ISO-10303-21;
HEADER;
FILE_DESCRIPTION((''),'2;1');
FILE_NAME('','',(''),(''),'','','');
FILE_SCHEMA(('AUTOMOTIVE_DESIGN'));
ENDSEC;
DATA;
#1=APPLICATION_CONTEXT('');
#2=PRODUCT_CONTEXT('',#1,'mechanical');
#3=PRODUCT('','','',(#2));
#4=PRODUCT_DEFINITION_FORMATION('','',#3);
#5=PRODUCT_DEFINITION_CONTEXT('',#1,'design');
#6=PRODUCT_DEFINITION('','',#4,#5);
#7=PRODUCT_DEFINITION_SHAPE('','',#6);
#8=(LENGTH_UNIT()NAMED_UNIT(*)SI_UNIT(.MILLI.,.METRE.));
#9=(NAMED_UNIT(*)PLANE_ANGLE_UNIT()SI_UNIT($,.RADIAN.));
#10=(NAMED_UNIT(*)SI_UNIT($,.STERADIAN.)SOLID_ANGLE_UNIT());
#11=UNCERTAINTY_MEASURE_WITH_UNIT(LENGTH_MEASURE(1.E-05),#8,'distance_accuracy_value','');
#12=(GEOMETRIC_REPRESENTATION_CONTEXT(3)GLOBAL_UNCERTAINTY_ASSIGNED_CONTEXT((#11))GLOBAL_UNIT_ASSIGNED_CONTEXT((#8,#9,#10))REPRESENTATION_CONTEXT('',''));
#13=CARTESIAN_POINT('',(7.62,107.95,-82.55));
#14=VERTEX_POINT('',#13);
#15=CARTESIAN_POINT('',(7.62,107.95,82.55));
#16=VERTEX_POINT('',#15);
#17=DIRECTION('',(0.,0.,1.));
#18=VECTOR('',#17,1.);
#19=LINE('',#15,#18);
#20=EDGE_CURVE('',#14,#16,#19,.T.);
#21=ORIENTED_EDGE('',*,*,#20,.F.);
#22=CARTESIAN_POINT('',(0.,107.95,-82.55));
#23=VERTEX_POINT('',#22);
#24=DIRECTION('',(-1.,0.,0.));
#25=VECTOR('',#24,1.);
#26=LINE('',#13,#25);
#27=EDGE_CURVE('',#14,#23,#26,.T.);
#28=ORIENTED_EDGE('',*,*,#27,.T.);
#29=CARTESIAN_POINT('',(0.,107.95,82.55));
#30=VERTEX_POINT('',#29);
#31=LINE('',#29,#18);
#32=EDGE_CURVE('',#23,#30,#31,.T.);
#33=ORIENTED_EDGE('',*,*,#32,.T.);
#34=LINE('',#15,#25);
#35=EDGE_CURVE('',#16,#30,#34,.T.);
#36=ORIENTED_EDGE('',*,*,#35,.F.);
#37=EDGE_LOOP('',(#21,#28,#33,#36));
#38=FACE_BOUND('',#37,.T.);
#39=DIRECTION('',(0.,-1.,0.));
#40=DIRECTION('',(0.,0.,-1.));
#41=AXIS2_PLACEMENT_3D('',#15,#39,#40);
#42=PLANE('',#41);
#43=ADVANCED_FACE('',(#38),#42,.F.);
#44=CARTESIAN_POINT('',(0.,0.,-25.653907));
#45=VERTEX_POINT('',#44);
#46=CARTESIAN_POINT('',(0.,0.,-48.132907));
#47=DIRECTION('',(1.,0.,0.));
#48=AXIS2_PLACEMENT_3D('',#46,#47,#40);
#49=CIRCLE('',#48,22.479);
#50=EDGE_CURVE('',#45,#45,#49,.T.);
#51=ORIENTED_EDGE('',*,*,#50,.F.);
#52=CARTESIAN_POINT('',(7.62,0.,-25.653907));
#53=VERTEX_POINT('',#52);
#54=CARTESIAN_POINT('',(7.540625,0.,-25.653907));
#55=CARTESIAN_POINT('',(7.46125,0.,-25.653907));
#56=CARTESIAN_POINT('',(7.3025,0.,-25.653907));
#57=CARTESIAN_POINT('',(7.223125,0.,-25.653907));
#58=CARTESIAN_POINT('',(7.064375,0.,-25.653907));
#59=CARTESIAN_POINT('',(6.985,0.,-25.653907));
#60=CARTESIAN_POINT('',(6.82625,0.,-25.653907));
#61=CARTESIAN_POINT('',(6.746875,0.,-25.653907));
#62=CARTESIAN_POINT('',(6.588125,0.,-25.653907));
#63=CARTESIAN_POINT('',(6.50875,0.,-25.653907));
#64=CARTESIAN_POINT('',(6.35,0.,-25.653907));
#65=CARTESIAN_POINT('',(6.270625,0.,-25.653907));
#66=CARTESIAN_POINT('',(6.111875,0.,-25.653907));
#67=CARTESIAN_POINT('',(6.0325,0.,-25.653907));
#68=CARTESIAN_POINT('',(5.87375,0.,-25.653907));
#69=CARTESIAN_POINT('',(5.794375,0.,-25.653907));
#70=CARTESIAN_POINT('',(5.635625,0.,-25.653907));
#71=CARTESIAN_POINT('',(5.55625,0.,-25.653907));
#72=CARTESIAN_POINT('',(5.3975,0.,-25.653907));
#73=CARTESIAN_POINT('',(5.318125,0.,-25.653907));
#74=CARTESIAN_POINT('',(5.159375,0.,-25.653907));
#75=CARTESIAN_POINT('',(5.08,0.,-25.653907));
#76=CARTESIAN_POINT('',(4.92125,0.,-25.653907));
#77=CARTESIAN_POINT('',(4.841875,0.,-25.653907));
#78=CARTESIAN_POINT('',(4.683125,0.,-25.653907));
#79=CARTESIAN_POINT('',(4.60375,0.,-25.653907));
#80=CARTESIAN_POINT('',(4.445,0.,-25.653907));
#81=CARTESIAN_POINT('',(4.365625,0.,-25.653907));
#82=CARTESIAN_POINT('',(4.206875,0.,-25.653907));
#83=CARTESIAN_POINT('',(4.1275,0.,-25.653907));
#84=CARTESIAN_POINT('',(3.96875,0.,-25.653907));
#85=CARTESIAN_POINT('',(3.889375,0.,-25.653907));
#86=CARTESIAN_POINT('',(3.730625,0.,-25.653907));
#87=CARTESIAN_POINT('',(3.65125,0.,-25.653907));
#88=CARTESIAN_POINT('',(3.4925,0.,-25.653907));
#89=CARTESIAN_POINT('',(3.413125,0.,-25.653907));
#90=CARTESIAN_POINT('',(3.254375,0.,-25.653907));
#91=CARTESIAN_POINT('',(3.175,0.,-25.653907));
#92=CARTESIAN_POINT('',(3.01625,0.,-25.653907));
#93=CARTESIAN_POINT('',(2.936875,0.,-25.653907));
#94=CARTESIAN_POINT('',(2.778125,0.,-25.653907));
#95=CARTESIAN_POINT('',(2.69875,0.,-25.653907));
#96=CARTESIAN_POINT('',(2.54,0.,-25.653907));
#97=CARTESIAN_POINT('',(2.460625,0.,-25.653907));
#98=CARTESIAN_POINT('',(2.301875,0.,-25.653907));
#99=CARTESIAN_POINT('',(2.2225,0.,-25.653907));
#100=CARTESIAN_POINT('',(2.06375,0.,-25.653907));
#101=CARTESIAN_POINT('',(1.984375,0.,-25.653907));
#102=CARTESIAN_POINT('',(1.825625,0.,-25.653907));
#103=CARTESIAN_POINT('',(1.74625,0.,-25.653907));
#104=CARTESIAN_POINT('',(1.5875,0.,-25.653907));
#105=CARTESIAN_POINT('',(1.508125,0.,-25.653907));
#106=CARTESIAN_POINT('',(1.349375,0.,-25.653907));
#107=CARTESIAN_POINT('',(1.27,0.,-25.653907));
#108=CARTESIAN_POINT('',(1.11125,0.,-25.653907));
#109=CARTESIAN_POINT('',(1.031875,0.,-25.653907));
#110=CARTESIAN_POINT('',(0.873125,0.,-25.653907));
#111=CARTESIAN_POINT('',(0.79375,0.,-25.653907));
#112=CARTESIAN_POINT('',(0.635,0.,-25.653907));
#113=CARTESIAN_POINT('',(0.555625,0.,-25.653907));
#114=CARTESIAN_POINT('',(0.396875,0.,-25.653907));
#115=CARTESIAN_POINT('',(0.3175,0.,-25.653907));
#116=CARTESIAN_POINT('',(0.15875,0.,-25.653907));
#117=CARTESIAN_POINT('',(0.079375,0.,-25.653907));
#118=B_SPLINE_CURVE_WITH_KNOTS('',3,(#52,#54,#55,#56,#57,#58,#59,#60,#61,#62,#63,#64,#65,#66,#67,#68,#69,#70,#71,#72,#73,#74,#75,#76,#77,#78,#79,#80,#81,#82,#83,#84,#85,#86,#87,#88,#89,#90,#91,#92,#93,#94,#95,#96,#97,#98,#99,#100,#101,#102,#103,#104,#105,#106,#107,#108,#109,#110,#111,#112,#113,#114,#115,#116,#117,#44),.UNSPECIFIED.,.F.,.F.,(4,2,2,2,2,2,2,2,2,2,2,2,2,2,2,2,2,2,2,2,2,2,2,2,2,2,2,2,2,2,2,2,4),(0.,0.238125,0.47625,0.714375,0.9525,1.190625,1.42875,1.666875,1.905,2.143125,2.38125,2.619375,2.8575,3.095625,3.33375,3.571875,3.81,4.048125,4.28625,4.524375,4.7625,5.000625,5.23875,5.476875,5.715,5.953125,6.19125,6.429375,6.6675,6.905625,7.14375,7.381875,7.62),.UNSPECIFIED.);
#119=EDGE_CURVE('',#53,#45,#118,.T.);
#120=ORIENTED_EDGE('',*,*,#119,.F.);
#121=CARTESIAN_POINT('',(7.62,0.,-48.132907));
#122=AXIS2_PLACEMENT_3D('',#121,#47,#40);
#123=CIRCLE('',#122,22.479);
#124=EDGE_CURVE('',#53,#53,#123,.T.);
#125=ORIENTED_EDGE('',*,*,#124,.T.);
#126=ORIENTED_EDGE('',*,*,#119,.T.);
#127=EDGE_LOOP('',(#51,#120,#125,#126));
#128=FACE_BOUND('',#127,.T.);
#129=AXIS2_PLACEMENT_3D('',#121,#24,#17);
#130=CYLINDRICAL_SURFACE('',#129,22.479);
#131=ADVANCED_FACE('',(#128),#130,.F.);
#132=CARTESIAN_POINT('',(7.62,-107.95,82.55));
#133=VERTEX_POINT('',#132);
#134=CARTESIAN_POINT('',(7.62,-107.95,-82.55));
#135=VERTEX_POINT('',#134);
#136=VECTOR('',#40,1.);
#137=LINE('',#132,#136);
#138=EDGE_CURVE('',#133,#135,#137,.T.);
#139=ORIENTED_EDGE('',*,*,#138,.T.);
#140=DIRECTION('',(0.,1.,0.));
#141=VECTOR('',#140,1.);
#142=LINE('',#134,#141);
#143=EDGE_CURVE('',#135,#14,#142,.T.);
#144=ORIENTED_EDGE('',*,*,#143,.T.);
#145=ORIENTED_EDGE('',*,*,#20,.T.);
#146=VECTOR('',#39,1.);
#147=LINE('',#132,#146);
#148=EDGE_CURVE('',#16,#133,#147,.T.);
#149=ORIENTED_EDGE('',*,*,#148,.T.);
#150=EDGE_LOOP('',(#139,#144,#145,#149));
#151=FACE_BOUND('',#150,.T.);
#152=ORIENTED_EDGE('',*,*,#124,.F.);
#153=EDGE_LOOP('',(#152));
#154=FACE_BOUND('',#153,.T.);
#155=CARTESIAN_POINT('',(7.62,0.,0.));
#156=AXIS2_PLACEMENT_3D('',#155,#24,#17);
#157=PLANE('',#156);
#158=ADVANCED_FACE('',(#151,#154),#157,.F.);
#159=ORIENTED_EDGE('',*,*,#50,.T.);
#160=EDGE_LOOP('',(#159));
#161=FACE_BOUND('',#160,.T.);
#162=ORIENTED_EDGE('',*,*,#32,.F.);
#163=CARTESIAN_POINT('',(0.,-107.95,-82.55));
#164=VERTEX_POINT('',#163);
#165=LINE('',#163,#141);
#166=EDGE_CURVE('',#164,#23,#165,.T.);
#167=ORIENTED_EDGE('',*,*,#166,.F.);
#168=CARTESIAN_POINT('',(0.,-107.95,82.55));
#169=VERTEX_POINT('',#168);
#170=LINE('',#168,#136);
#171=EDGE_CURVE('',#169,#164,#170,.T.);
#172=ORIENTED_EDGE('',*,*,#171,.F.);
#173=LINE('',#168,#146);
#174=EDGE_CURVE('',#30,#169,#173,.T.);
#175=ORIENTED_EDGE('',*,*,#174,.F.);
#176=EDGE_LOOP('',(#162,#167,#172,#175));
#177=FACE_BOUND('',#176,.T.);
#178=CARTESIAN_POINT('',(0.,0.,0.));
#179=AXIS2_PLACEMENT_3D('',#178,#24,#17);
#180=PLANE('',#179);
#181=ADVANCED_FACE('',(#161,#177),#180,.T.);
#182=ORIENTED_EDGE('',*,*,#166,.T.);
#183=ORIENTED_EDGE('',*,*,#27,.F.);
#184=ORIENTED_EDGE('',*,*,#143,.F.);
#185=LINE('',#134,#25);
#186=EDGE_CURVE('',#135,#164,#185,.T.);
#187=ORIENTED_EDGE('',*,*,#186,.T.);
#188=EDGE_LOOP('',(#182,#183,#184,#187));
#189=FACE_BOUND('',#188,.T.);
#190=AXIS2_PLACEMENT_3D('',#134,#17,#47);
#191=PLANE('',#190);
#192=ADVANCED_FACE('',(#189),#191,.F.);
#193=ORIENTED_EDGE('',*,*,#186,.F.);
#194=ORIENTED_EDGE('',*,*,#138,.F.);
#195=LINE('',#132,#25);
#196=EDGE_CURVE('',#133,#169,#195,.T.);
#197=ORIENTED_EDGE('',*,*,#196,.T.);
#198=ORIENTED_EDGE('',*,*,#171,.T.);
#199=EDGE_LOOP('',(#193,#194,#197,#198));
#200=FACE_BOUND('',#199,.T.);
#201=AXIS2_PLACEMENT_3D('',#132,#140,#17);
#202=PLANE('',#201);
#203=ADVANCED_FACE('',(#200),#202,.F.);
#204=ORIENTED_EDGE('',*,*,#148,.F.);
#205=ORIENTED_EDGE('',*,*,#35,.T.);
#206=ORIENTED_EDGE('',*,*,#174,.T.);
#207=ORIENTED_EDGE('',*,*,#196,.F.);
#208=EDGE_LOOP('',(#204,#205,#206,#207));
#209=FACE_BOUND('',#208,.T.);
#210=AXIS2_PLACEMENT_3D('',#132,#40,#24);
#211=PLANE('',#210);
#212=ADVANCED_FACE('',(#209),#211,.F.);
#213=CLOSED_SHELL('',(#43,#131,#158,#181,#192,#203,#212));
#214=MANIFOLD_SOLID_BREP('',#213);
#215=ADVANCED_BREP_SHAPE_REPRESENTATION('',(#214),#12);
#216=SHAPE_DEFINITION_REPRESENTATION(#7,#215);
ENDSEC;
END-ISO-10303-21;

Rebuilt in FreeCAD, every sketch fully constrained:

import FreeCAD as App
import Part
import Sketcher

V = App.Vector
Q = App.Units.Quantity


def add_polygon(sketch, points):
    """Adds a closed chain of lines whose ends are joined by coincident constraints."""
    first, n = sketch.GeometryCount, len(points)
    for a, b in zip(points, points[1:] + points[:1]):
        sketch.addGeometry(Part.LineSegment(App.Vector(*a, 0), App.Vector(*b, 0)), False)
    for i in range(n):
        sketch.addConstraint(Sketcher.Constraint("Coincident", first + i, 2, first + (i + 1) % n, 1))

doc = App.newDocument("Part")
body = doc.addObject("PartDesign::Body", "Body")

sketch1 = body.newObject("Sketcher::SketchObject", "Sketch")
sketch1.AttachmentSupport = (doc.getObject("YZ_Plane"), [""])
sketch1.MapMode = "FlatFace"
add_polygon(sketch1, [(107.95, 82.55), (-107.95, 82.55), (-107.95, -82.55), (107.95, -82.55)])
sketch1.addGeometry(Part.Circle(V(0, -48.132907, 0), V(0, 0, 1), 22.479), False)
sketch1.addConstraint([
    Sketcher.Constraint("Horizontal", 0),
    Sketcher.Constraint("Vertical", 1),
    Sketcher.Constraint("Horizontal", 2),
    Sketcher.Constraint("Vertical", 3),
    Sketcher.Constraint("Symmetric", 0, 2, 2, 2, -1, 1),
    Sketcher.Constraint("PointOnObject", 4, 3, -2),
    Sketcher.Constraint("Diameter", 4, Q("1.77 in")),
    Sketcher.Constraint("DistanceX", 0, 2, 0, 1, Q("8.5 in")),
    Sketcher.Constraint("DistanceY", 1, 2, 1, 1, Q("6.5 in")),
    Sketcher.Constraint("DistanceY", 4, 3, -1, 1, Q("48.132907 mm")),
])
pad1 = body.newObject("PartDesign::Pad", "Pad")
pad1.Profile = sketch1
pad1.Length = Q("0.3 in")

doc.recompute()
